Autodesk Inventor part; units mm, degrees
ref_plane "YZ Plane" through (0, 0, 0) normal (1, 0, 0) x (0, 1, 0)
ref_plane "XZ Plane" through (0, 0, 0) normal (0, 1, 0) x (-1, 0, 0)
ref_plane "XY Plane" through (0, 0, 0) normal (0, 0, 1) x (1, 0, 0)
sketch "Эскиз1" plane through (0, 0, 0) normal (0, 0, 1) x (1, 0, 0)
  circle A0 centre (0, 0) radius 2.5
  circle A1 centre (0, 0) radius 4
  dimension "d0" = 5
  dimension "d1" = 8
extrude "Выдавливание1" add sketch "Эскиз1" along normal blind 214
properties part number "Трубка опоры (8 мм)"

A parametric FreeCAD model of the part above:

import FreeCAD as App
import Part
import Sketcher

V = App.Vector

doc = App.newDocument("Part")
body = doc.addObject("PartDesign::Body", "Body")

sketch1 = doc.addObject("Sketcher::SketchObject", "Sketch")
body.addObject(sketch1)
sketch1.AttachmentSupport = (doc.XY_Plane, [""])
sketch1.MapMode = "FlatFace"
sketch1.addGeometry([
    Part.Circle(V(0, 0, 0), V(0, 0, 1), 4),
    Part.Circle(V(0, 0, 0), V(0, 0, 1), 2.5),
], False)
sketch1.addConstraint([
    Sketcher.Constraint("Coincident", 0, 3, -1, 1),
    Sketcher.Constraint("Coincident", 1, 3, -1, 1),
    Sketcher.Constraint("Diameter", 0, 8.0),
    Sketcher.Constraint("Diameter", 1, 5.0),
])
pad1 = doc.addObject("PartDesign::Pad", "Pad")
body.addObject(pad1)
pad1.Profile = sketch1
pad1.Length = 214

doc.recompute()
